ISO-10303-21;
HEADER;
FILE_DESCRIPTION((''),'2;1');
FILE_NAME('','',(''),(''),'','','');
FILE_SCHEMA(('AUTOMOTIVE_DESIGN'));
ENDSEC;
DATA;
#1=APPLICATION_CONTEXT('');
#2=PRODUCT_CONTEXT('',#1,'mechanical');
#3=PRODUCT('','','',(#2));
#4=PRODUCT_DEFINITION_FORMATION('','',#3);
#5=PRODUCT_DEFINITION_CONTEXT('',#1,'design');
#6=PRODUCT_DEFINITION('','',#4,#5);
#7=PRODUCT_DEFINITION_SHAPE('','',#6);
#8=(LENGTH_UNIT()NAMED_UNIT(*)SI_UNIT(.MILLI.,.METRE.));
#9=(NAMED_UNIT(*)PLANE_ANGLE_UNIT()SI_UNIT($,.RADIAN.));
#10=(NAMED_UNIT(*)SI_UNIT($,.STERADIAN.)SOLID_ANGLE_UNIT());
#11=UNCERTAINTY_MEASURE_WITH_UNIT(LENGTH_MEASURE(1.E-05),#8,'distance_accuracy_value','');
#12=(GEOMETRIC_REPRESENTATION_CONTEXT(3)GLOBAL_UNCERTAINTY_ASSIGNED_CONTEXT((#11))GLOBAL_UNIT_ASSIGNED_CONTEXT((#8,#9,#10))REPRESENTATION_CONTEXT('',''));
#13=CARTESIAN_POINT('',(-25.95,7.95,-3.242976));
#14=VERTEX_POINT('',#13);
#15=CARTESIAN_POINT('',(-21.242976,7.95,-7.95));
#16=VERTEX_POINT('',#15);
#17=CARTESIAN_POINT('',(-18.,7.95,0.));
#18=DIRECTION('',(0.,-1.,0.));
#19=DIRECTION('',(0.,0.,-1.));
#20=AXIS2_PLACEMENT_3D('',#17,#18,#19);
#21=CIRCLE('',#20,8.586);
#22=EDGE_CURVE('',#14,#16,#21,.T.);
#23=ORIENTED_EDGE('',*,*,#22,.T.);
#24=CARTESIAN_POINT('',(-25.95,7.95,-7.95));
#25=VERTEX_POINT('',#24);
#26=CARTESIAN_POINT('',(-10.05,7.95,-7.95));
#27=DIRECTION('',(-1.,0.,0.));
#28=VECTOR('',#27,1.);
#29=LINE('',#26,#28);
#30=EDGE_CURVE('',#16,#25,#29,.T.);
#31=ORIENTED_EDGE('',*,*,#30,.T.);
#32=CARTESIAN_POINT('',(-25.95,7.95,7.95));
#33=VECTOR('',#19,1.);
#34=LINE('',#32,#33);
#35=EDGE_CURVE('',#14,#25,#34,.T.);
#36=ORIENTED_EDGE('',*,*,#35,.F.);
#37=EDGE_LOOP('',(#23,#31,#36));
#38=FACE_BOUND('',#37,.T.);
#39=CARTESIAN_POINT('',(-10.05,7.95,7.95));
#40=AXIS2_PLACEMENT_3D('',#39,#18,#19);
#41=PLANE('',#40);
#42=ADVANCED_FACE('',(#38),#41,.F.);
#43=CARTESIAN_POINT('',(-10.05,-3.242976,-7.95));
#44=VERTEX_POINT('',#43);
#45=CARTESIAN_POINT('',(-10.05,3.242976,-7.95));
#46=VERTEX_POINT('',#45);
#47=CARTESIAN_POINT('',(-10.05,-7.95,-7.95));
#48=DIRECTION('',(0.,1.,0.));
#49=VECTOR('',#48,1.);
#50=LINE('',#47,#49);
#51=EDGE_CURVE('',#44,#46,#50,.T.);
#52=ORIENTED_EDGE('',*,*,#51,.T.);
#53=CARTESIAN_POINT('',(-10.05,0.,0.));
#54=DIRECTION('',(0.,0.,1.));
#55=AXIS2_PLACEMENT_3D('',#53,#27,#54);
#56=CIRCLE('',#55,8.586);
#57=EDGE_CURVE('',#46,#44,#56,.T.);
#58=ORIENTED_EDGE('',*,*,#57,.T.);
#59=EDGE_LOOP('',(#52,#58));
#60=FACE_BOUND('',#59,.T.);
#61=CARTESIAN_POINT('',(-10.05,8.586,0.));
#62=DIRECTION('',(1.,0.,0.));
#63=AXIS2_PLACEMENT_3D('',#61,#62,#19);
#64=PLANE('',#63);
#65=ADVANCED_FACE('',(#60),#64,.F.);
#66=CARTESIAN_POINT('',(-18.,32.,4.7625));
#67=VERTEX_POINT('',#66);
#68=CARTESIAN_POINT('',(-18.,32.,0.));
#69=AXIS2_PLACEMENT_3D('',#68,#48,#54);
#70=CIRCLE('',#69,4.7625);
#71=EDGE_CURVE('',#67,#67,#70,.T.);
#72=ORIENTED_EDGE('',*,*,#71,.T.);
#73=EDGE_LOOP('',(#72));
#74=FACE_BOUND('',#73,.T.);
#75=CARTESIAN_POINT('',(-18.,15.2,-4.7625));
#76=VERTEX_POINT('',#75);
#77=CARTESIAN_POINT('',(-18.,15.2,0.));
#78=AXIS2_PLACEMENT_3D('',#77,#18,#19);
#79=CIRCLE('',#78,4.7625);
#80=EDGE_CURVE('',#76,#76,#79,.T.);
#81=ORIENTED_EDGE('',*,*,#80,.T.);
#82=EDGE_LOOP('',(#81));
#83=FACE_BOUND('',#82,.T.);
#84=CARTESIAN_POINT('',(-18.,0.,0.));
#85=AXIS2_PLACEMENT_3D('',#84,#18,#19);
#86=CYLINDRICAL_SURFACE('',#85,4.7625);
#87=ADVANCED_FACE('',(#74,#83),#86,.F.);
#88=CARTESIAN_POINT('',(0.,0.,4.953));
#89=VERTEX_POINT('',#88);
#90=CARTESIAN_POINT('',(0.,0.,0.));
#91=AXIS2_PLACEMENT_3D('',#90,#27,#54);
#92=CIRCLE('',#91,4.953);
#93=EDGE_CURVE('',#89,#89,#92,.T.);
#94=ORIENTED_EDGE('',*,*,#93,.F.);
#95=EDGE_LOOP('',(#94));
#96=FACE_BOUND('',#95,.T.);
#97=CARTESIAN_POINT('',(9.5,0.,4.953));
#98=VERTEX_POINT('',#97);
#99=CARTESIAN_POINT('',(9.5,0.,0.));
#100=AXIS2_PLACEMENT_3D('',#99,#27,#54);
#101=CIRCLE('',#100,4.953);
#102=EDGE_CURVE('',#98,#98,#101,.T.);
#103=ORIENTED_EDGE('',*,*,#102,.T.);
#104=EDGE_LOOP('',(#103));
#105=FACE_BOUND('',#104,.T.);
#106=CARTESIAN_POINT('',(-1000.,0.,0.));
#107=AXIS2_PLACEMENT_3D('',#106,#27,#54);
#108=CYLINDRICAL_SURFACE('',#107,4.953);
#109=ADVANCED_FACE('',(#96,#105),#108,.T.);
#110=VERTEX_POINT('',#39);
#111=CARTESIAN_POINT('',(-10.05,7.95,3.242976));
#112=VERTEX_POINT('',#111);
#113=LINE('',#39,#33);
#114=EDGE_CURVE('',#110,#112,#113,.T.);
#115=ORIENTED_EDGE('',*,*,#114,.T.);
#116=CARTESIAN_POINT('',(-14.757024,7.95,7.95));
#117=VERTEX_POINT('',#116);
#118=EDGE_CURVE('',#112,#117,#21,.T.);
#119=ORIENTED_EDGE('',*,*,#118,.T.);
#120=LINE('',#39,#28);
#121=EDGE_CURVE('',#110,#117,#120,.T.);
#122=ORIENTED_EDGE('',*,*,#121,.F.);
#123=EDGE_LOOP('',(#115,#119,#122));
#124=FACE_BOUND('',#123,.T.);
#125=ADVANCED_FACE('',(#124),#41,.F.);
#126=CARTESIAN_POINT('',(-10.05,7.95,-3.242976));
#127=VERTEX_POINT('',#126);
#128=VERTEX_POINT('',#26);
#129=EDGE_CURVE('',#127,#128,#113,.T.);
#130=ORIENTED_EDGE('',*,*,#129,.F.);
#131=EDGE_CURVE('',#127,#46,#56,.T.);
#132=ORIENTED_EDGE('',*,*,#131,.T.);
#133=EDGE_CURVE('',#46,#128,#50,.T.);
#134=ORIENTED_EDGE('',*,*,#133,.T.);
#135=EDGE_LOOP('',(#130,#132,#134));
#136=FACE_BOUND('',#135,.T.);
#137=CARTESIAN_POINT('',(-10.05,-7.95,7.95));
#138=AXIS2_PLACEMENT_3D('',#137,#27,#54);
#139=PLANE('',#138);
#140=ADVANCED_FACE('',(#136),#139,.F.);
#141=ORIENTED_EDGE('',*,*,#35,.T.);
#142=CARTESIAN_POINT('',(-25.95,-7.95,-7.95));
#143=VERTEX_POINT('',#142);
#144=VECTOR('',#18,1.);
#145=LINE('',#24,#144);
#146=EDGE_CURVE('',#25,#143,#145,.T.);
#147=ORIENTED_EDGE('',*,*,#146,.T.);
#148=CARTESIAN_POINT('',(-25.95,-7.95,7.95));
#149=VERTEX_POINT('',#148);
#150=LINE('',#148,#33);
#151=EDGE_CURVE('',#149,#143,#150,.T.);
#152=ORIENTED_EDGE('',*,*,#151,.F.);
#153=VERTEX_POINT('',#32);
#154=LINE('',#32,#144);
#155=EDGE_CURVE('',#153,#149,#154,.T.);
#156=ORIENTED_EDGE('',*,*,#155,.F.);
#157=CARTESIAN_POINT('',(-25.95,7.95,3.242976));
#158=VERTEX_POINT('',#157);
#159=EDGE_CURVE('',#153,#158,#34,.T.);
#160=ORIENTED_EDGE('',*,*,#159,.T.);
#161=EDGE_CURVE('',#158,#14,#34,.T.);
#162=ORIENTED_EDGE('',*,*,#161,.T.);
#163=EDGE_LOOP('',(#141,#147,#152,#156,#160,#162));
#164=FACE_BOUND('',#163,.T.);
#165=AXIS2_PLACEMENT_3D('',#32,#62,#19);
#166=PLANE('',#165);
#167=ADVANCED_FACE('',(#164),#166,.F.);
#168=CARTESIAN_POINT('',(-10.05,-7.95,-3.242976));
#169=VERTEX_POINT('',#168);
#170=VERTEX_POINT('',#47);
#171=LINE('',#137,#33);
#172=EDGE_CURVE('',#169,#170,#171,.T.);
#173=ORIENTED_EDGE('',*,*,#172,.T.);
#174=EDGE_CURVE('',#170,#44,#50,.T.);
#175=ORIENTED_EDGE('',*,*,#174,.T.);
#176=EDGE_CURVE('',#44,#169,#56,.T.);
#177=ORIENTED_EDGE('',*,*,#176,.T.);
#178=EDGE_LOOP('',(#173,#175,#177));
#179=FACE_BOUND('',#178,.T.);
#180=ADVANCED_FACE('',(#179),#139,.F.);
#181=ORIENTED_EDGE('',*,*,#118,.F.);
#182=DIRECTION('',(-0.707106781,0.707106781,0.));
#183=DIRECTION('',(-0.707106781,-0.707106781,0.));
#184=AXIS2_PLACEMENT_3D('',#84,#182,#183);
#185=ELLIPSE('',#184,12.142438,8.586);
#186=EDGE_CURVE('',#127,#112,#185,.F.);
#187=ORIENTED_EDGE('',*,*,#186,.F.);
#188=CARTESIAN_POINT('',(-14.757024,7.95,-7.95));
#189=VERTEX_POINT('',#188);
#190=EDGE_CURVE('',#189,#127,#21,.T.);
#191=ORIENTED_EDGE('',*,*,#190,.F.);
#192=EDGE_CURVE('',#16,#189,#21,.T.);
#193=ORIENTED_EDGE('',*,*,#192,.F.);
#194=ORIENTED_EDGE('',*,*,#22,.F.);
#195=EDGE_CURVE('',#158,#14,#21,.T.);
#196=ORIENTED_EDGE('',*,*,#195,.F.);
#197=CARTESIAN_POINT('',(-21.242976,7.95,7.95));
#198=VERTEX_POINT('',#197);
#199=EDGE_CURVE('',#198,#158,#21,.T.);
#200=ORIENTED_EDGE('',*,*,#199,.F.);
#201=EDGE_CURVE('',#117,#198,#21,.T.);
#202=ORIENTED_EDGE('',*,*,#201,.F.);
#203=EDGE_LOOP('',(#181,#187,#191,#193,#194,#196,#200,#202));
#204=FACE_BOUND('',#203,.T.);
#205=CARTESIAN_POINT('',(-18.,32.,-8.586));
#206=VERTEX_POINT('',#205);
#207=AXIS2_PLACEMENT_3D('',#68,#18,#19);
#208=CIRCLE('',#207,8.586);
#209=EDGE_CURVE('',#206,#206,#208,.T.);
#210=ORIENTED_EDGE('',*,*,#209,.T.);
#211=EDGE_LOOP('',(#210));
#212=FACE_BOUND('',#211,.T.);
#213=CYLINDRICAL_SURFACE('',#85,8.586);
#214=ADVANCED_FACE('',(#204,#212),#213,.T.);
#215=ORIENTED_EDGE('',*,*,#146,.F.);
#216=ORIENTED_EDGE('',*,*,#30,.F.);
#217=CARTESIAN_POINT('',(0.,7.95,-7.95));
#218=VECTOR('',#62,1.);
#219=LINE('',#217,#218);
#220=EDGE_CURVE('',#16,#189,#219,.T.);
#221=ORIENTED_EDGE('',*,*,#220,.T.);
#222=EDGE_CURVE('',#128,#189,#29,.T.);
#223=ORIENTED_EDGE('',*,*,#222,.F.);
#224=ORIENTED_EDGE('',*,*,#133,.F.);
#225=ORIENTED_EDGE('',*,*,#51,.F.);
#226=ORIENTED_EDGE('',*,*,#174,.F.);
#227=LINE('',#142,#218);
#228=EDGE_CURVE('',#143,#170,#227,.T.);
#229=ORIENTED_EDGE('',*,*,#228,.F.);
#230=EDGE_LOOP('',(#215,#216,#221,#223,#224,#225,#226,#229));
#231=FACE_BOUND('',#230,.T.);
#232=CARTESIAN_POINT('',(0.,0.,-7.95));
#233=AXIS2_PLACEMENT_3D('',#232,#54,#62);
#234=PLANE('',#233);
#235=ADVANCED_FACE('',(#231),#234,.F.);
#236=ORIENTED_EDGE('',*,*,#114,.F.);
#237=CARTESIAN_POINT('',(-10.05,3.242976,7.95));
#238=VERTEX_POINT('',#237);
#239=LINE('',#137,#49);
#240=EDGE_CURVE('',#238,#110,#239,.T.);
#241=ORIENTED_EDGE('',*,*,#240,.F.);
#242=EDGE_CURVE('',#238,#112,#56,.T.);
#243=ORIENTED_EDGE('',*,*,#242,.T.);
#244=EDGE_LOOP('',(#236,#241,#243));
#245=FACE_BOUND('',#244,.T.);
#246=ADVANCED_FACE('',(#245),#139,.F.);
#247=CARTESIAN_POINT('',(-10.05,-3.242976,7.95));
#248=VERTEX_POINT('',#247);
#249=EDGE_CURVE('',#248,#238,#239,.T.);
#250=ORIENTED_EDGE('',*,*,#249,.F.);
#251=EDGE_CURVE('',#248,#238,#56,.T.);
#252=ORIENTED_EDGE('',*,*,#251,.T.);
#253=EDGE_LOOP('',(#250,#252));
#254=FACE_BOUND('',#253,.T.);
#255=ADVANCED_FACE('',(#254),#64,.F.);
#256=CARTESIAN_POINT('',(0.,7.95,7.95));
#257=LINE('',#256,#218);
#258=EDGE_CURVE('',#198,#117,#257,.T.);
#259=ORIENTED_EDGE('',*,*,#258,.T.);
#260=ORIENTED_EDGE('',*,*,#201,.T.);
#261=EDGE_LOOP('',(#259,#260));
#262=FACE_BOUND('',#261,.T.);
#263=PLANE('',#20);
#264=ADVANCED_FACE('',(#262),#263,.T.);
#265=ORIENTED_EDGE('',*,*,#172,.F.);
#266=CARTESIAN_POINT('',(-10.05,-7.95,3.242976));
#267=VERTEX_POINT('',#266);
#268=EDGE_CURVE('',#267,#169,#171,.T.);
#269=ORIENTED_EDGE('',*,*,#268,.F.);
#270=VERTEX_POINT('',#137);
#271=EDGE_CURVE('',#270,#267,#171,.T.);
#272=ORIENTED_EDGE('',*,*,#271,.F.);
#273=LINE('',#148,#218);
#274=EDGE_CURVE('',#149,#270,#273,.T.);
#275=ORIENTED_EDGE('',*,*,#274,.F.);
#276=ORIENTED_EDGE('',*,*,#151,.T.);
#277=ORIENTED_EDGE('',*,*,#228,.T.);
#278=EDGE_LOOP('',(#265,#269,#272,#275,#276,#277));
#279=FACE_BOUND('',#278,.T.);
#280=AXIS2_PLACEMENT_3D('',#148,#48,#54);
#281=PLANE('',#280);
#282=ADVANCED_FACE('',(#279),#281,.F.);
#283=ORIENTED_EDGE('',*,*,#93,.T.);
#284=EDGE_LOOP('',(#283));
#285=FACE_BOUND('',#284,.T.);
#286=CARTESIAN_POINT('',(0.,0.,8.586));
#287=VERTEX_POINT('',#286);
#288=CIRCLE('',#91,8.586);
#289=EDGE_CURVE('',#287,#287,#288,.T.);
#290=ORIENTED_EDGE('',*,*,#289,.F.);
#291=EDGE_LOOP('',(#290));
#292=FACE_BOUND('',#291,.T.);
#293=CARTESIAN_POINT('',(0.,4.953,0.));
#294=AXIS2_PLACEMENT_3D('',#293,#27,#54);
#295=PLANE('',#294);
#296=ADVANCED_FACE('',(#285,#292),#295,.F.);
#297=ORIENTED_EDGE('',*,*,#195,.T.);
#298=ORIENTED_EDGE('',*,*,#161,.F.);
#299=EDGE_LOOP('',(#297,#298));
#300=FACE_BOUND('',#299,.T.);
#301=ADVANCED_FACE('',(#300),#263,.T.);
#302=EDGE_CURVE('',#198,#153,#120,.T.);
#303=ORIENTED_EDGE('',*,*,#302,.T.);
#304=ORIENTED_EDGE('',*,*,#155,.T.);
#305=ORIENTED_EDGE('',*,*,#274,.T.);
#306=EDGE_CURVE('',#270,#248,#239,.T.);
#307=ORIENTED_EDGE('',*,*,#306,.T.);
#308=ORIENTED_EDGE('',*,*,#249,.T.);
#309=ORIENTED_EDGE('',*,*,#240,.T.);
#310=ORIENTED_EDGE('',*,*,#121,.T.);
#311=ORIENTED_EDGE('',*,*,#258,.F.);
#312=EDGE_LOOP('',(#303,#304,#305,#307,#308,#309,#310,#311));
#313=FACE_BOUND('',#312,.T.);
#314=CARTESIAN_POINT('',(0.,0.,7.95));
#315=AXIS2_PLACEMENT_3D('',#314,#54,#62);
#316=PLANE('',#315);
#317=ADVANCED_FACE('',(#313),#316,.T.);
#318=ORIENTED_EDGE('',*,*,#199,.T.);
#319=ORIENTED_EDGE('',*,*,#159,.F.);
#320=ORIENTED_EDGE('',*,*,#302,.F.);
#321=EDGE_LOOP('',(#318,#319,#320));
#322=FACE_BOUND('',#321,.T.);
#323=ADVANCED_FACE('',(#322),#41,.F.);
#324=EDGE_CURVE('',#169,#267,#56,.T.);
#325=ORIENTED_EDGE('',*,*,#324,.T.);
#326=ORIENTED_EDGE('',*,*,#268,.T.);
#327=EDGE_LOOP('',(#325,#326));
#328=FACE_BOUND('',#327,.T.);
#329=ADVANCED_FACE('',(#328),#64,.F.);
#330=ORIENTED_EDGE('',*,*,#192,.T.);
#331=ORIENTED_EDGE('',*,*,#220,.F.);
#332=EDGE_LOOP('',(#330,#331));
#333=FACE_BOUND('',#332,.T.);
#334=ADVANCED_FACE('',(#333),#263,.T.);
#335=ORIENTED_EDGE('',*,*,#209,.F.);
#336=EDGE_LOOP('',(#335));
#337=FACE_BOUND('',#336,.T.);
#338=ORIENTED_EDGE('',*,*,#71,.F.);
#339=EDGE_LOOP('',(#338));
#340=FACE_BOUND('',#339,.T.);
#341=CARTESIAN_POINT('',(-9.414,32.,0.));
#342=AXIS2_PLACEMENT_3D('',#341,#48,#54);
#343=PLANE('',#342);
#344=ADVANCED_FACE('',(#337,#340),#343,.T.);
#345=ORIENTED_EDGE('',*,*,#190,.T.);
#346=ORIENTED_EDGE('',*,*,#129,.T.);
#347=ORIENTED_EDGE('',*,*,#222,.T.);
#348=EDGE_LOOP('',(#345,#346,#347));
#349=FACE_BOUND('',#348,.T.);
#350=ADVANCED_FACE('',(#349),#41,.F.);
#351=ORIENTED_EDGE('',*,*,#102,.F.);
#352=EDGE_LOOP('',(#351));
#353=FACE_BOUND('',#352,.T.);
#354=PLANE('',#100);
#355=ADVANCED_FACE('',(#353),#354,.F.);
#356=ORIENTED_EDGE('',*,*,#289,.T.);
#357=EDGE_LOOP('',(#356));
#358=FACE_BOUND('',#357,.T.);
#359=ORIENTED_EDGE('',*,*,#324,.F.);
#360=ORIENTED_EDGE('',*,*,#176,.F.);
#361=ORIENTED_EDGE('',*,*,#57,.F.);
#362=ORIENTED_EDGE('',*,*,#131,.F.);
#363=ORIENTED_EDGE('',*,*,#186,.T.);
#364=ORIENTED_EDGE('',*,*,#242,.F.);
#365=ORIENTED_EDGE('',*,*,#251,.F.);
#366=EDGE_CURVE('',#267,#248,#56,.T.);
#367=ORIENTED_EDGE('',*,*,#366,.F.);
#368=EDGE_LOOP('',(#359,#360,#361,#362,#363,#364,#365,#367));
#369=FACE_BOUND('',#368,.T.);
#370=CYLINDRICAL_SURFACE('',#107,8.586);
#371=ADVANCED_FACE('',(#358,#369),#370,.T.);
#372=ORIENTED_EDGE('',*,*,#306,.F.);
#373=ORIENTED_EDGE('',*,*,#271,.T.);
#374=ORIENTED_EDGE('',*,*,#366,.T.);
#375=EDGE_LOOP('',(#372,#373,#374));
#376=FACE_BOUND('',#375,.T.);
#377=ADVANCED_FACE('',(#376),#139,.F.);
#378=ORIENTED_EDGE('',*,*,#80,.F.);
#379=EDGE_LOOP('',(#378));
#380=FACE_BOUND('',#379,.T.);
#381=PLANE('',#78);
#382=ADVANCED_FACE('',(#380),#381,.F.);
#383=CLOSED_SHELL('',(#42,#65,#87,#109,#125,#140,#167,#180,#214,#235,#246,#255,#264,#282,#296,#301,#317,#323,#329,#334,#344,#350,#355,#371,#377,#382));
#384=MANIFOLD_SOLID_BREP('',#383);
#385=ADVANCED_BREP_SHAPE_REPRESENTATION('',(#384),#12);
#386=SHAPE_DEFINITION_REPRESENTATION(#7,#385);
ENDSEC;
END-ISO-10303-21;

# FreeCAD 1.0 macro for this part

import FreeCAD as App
import Part
import Sketcher
from FreeCAD import Vector
Q = App.Units.Quantity

doc = App.newDocument("Part")
body = doc.addObject("PartDesign::Body", "Body")

# Sketch on XY plane
sketch1 = body.newObject("Sketcher::SketchObject", "Sketch")
sketch1.AttachmentSupport = (doc.getObject("XY_Plane"), [""])
sketch1.MapMode = "FlatFace"
sketch1.addGeometry([
    Part.LineSegment(Vector(-26, 8, 0), Vector(-26, -8, 0)),
    Part.LineSegment(Vector(-26, -8, 0), Vector(-10, -8, 0)),
    Part.LineSegment(Vector(-10, -8, 0), Vector(-10, 8, 0)),
    Part.LineSegment(Vector(-10, 8, 0), Vector(-26, 8, 0)),
], False)
sketch1.addConstraint([
    Sketcher.Constraint("Coincident", 0, 2, 1, 1),
    Sketcher.Constraint("Coincident", 1, 2, 2, 1),
    Sketcher.Constraint("Coincident", 2, 2, 3, 1),
    Sketcher.Constraint("Coincident", 3, 2, 0, 1),
    Sketcher.Constraint("Vertical", 0),
    Sketcher.Constraint("Horizontal", 1),
    Sketcher.Constraint("Vertical", 2),
    Sketcher.Constraint("Horizontal", 3),
    Sketcher.Constraint("Equal", 3, 0),
    Sketcher.Constraint("DistanceX", 1, 1, 1, 2, Q("15.9 mm")),
    Sketcher.Constraint("DistanceX", 0, 2, -1, 1, Q("25.95 mm")),
    Sketcher.Constraint("DistanceY", 0, 2, -1, 1, Q("7.95 mm")),
])
pad1 = body.newObject("PartDesign::Pad", "Pad")
pad1.Profile = sketch1
pad1.Length = 15.9
pad1.Midplane = True

# Sketch on XY plane
sketch2 = body.newObject("Sketcher::SketchObject", "Sketch001")
sketch2.AttachmentSupport = (doc.getObject("XY_Plane"), [""])
sketch2.MapMode = "FlatFace"
sketch2.addGeometry([
    Part.LineSegment(Vector(9.5, 0, 0), Vector(9.5, 5, 0)),  # 0
    Part.LineSegment(Vector(9.5, 5, 0), Vector(0, 5, 0)),  # 1
    Part.LineSegment(Vector(0, 5, 0), Vector(0, 8.6, 0)),  # 2
    Part.LineSegment(Vector(0, 8.6, 0), Vector(-10.1, 8.6, 0)),  # 3
    Part.LineSegment(Vector(-10.1, 8.6, 0), Vector(-10.1, 0, 0)),  # 4
    Part.LineSegment(Vector(-10.1, 0, 0), Vector(9.5, 0, 0)),  # 5
], False)
sketch2.addConstraint([
    Sketcher.Constraint("Coincident", 0, 2, 1, 1),
    Sketcher.Constraint("Coincident", 1, 2, 2, 1),
    Sketcher.Constraint("Coincident", 2, 2, 3, 1),
    Sketcher.Constraint("Coincident", 3, 2, 4, 1),
    Sketcher.Constraint("Coincident", 4, 2, 5, 1),
    Sketcher.Constraint("Coincident", 5, 2, 0, 1),
    Sketcher.Constraint("Vertical", 0),
    Sketcher.Constraint("Horizontal", 1),
    Sketcher.Constraint("Vertical", 2),
    Sketcher.Constraint("Horizontal", 3),
    Sketcher.Constraint("Vertical", 4),
    Sketcher.Constraint("Horizontal", 5),
    Sketcher.Constraint("PointOnObject", 1, 2, -2),
    Sketcher.Constraint("PointOnObject", 4, 2, -1),
    Sketcher.Constraint("DistanceX", 1, 2, 1, 1, Q("9.5 mm")),
    Sketcher.Constraint("DistanceX", 3, 2, 3, 1, Q("10.05 mm")),
    Sketcher.Constraint("DistanceY", 0, 1, 0, 2, Q("4.953 mm")),
    Sketcher.Constraint("DistanceY", 2, 1, 2, 2, Q("3.633 mm")),
])
revolution = body.newObject("PartDesign::Revolution", "Revolution")
revolution.Profile = sketch2
revolution.ReferenceAxis = (sketch2, ["H_Axis"])
revolution.Angle = 360

# Sketch on XY plane
sketch3 = body.newObject("Sketcher::SketchObject", "Sketch002")
sketch3.AttachmentSupport = (doc.getObject("XY_Plane"), [""])
sketch3.MapMode = "FlatFace"
sketch3.addGeometry([
    Part.LineSegment(Vector(-18, 32, 0), Vector(-18, 8, 0)),
    Part.LineSegment(Vector(-18, 8, 0), Vector(-9, 8, 0)),
    Part.LineSegment(Vector(-9, 8, 0), Vector(-9, 32, 0)),
    Part.LineSegment(Vector(-9, 32, 0), Vector(-18, 32, 0)),
], False)
sketch3.addGeometry(Part.LineSegment(Vector(-18, 8, 0), Vector(-18, 32, 0)), True)  # axis
sketch3.addConstraint([
    Sketcher.Constraint("Coincident", 0, 2, 1, 1),
    Sketcher.Constraint("Coincident", 1, 2, 2, 1),
    Sketcher.Constraint("Coincident", 2, 2, 3, 1),
    Sketcher.Constraint("Coincident", 3, 2, 0, 1),
    Sketcher.Constraint("Vertical", 0),
    Sketcher.Constraint("Horizontal", 1),
    Sketcher.Constraint("Vertical", 2),
    Sketcher.Constraint("Horizontal", 3),
    Sketcher.Constraint("Vertical", 4),
    Sketcher.Constraint("Coincident", 4, 1, 0, 2),
    Sketcher.Constraint("Horizontal", 2, 2, 4, 2),
    Sketcher.Constraint("DistanceX", 0, 2, -1, 1, Q("18 mm")),
    Sketcher.Constraint("DistanceY", -1, 1, 2, 2, Q("32 mm")),
    Sketcher.Constraint("DistanceY", 0, 2, 0, 1, Q("24.05 mm")),
    Sketcher.Constraint("DistanceX", 1, 1, 1, 2, Q("8.586 mm")),
])
revolution2 = body.newObject("PartDesign::Revolution", "Revolution001")
revolution2.Profile = sketch3
revolution2.ReferenceAxis = (sketch3, ["Axis0"])
revolution2.Angle = 360

# Sketch on XY plane
sketch4 = body.newObject("Sketcher::SketchObject", "Sketch003")
sketch4.AttachmentSupport = (doc.getObject("XY_Plane"), [""])
sketch4.MapMode = "FlatFace"
sketch4.addGeometry([
    Part.LineSegment(Vector(-18, 33, 0), Vector(-18, 15.2, 0)),
    Part.LineSegment(Vector(-18, 15.2, 0), Vector(-13.2, 15.2, 0)),
    Part.LineSegment(Vector(-13.2, 15.2, 0), Vector(-13.2, 33, 0)),
    Part.LineSegment(Vector(-13.2, 33, 0), Vector(-18, 33, 0)),
], False)
sketch4.addGeometry(Part.LineSegment(Vector(-18, 15.2, 0), Vector(-18, 33, 0)), True)  # axis
sketch4.addConstraint([
    Sketcher.Constraint("Coincident", 0, 2, 1, 1),
    Sketcher.Constraint("Coincident", 1, 2, 2, 1),
    Sketcher.Constraint("Coincident", 2, 2, 3, 1),
    Sketcher.Constraint("Coincident", 3, 2, 0, 1),
    Sketcher.Constraint("Vertical", 0),
    Sketcher.Constraint("Horizontal", 1),
    Sketcher.Constraint("Vertical", 2),
    Sketcher.Constraint("Horizontal", 3),
    Sketcher.Constraint("Vertical", 4),
    Sketcher.Constraint("Coincident", 4, 1, 0, 2),
    Sketcher.Constraint("Horizontal", 2, 2, 4, 2),
    Sketcher.Constraint("DistanceY", 0, 2, 0, 1, Q("17.8 mm")),
    Sketcher.Constraint("DistanceX", 0, 2, -1, 1, Q("18 mm")),
    Sketcher.Constraint("DistanceY", -1, 1, 2, 2, Q("33 mm")),
    Sketcher.Constraint("DistanceX", 1, 1, 1, 2, Q("4.7625 mm")),
])
groove = body.newObject("PartDesign::Groove", "Groove")
groove.Profile = sketch4
groove.ReferenceAxis = (sketch4, ["Axis0"])
groove.Angle = 360

doc.recompute()
